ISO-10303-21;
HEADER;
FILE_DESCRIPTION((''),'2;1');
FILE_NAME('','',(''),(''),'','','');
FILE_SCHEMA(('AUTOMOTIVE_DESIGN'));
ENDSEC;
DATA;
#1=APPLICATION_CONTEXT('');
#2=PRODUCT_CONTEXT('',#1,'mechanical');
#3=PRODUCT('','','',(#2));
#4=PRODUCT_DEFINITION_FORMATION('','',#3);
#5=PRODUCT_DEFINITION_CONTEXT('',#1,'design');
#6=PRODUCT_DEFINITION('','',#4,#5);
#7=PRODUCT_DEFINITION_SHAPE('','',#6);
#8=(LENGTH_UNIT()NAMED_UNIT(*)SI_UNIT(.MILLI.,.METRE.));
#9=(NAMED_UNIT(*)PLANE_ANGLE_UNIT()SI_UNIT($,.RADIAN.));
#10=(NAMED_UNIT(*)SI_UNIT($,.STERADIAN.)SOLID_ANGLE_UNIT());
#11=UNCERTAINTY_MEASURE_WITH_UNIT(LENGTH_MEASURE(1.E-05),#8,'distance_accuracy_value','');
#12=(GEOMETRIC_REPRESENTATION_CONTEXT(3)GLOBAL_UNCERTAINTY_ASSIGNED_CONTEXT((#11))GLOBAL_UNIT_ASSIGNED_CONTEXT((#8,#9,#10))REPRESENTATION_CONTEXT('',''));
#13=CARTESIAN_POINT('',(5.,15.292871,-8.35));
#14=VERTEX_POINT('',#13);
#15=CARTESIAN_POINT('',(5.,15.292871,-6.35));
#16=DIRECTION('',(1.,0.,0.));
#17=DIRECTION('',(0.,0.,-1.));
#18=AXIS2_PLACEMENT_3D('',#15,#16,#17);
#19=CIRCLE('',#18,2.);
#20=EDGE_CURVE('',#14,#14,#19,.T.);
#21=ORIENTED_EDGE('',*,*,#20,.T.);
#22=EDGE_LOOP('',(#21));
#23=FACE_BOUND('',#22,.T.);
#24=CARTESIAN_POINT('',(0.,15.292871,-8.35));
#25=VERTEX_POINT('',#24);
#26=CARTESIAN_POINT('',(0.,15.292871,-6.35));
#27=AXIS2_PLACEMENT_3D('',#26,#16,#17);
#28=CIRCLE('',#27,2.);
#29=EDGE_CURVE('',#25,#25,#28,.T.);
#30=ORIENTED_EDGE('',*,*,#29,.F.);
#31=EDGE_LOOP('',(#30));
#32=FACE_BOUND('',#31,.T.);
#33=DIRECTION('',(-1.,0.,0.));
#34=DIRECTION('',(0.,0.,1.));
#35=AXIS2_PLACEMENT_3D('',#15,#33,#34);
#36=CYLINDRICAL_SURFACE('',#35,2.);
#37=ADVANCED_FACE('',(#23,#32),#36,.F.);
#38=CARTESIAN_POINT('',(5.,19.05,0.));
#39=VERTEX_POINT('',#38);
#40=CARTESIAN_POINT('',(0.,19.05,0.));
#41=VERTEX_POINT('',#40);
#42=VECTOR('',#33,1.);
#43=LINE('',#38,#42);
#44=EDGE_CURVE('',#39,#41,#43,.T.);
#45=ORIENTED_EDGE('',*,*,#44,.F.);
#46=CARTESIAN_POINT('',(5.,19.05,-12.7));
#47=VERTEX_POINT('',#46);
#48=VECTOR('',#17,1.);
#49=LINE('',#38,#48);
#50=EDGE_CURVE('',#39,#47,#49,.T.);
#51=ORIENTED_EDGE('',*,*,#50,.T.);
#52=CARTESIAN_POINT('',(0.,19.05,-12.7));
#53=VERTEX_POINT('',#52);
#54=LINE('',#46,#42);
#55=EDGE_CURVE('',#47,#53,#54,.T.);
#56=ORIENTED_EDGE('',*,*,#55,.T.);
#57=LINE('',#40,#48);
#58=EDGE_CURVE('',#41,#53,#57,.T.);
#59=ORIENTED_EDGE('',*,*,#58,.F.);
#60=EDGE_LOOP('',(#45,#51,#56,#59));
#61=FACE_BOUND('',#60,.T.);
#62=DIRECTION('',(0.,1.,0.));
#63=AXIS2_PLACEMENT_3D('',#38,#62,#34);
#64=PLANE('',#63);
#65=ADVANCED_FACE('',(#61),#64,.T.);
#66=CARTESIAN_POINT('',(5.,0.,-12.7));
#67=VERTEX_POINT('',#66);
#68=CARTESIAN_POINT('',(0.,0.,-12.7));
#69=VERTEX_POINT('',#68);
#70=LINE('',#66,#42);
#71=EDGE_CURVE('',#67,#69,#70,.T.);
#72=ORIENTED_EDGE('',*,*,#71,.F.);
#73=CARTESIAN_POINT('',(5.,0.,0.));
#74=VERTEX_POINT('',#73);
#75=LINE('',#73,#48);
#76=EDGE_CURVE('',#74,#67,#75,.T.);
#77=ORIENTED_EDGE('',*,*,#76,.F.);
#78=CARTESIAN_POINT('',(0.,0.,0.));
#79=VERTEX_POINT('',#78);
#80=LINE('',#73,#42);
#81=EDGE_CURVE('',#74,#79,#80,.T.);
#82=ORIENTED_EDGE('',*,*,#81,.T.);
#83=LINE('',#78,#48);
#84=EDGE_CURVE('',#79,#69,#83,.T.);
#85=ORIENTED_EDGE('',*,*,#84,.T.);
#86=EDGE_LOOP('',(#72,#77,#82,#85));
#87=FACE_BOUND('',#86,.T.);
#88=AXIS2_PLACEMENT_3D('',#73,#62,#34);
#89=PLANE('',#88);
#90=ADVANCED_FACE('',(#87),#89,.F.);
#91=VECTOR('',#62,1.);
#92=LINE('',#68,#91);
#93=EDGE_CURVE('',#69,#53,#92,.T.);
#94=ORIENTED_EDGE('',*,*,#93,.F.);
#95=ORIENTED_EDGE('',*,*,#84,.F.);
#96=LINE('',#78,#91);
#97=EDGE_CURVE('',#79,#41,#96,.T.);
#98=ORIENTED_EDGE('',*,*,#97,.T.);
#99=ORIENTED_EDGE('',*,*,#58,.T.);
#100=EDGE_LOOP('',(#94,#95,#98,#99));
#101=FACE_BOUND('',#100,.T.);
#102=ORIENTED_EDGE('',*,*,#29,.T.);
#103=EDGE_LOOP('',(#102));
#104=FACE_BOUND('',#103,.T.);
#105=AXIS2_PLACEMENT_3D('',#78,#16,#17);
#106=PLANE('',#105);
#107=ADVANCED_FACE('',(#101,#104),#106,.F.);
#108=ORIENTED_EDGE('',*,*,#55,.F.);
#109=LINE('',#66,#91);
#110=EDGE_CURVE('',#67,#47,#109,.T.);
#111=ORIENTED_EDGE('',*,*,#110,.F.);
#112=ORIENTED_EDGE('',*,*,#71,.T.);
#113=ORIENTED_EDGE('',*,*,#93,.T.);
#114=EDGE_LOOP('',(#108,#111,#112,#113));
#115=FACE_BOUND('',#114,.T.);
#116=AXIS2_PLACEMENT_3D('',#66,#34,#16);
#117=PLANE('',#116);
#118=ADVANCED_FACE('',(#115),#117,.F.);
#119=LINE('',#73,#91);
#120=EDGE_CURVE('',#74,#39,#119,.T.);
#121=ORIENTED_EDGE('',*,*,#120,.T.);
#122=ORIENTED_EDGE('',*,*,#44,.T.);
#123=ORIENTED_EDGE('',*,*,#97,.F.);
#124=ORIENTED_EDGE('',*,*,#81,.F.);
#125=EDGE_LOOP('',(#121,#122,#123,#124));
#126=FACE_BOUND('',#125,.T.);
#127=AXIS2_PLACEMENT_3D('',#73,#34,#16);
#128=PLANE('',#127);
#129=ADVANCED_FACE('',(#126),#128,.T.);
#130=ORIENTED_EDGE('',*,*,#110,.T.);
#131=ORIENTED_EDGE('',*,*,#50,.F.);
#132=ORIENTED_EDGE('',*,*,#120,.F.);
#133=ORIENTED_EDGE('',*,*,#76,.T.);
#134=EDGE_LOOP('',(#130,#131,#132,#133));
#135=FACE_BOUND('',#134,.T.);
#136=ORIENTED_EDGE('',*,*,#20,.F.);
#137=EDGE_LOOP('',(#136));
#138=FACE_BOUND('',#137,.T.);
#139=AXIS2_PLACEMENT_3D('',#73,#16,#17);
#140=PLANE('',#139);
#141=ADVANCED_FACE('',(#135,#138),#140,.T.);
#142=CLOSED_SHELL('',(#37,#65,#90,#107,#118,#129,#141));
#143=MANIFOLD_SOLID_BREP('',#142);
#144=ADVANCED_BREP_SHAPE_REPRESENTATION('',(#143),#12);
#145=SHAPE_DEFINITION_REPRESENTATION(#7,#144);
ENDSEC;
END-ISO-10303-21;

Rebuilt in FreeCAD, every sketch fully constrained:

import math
import FreeCAD as App
import Part
import Sketcher
from FreeCAD import Vector
Q = App.Units.Quantity

doc = App.newDocument("Part")
params = doc.addObject("Spreadsheet::Sheet", "Params")
for row, (alias, value) in enumerate([
    ("sketch1_radius", "2 mm"),
    ("sketch1_height", "12.7 mm"),
    ("sketch1_width", "19.05 mm"),
    ("pad1_length", "5 mm"),
], start=1):
    params.set(f"A{row}", alias)
    params.set(f"B{row}", "=" + value)
    params.setAlias(f"B{row}", alias)

body = doc.addObject("PartDesign::Body", "Body")

sketch1 = body.newObject("Sketcher::SketchObject", "Sketch")
sketch1.AttachmentSupport = (doc.getObject("YZ_Plane"), [""])
sketch1.MapMode = "FlatFace"
sketch1.addGeometry(Part.LineSegment(Vector(19.1, 0, 0), Vector(0, 0, 0)), False)
sketch1.addGeometry(Part.LineSegment(Vector(0, 0, 0), Vector(0, -12.7, 0)), False)
sketch1.addGeometry(Part.LineSegment(Vector(0, -12.7, 0), Vector(19.1, -12.7, 0)), False)
sketch1.addGeometry(Part.LineSegment(Vector(19.1, -12.7, 0), Vector(19.1, 0, 0)), False)
sketch1.addGeometry(Part.ArcOfCircle(Part.Circle(Vector(15.3, -6.3, 0), Vector(0, 0, 1), 2), math.radians(0), math.radians(180)), False)
sketch1.addGeometry(Part.ArcOfCircle(Part.Circle(Vector(15.3, -6.3, 0), Vector(0, 0, 1), 2), math.radians(-90), math.radians(0)), False)
sketch1.addGeometry(Part.ArcOfCircle(Part.Circle(Vector(15.3, -6.3, 0), Vector(0, 0, 1), 2), math.radians(-180), math.radians(-90)), False)
sketch1.addConstraint(Sketcher.Constraint("Coincident", 0, 2, 1, 1))
sketch1.addConstraint(Sketcher.Constraint("Coincident", 1, 2, 2, 1))
sketch1.addConstraint(Sketcher.Constraint("Coincident", 2, 2, 3, 1))
sketch1.addConstraint(Sketcher.Constraint("Coincident", 3, 2, 0, 1))
sketch1.addConstraint(Sketcher.Constraint("Tangent", 4, 1, 5, 2))
sketch1.addConstraint(Sketcher.Constraint("Tangent", 5, 1, 6, 2))
sketch1.addConstraint(Sketcher.Constraint("Tangent", 6, 1, 4, 2))
sketch1.addConstraint(Sketcher.Constraint("Horizontal", 0))
sketch1.addConstraint(Sketcher.Constraint("Vertical", 1))
sketch1.addConstraint(Sketcher.Constraint("Horizontal", 2))
sketch1.addConstraint(Sketcher.Constraint("Vertical", 3))
sketch1.addConstraint(Sketcher.Constraint("Coincident", 0, 2, -1, 1))
sketch1.addConstraint(Sketcher.Constraint("Horizontal", 6, 3, 4, 1))
sketch1.addConstraint(Sketcher.Constraint("Horizontal", 4, 1, 6, 1))
sketch1.addConstraint(Sketcher.Constraint("Vertical", 6, 3, 5, 1))
sketch1.addConstraint(Sketcher.Constraint("Radius", 4, Q("2 mm")))
sketch1.addConstraint(Sketcher.Constraint("DistanceY", 1, 2, 1, 1, Q("12.7 mm")))
sketch1.addConstraint(Sketcher.Constraint("DistanceX", 0, 2, 0, 1, Q("19.05 mm")))
sketch1.addConstraint(Sketcher.Constraint("DistanceY", 4, 3, -1, 1, Q("6.35 mm")))
sketch1.addConstraint(Sketcher.Constraint("DistanceX", -1, 1, 4, 3, Q("15.292871 mm")))
sketch1.setExpression("Constraints[15]", "Params.sketch1_radius")
sketch1.setExpression("Constraints[16]", "Params.sketch1_height")
sketch1.setExpression("Constraints[17]", "Params.sketch1_width")
pad1 = body.newObject("PartDesign::Pad", "Pad")
pad1.Profile = sketch1
pad1.setExpression("Length", "Params.pad1_length")

doc.recompute()
